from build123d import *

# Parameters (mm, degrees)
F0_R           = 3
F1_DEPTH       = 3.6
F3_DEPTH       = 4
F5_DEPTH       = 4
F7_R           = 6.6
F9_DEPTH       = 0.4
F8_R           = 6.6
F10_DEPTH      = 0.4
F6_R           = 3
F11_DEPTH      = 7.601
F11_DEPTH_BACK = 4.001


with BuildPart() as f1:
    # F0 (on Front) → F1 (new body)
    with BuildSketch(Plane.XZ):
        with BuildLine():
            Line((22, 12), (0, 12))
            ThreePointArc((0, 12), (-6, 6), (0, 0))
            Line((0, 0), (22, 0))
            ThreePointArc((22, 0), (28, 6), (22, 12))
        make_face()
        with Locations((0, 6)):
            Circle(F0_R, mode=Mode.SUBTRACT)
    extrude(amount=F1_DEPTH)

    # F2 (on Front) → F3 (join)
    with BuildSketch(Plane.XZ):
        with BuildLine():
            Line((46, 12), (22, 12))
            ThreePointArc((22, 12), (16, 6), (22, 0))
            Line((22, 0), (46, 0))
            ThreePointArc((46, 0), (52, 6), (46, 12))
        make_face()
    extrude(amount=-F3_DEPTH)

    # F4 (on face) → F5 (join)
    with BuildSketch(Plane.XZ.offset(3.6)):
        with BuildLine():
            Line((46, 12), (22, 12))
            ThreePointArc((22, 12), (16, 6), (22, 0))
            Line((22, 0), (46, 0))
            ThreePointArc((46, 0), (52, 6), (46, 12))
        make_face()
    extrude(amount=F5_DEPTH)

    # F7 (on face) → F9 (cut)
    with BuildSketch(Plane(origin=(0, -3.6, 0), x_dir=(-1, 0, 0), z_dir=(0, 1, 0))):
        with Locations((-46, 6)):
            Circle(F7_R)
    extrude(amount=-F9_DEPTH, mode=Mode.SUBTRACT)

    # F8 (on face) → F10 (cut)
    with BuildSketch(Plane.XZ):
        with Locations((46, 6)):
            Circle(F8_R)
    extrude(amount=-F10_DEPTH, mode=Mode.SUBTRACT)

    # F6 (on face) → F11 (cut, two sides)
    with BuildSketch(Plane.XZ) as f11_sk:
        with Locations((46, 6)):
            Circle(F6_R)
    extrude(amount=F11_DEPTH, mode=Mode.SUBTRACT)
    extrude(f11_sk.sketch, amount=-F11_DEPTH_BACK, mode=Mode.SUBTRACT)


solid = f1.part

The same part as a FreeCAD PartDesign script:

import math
import FreeCAD as App
import Part
import Sketcher

V = App.Vector

doc = App.newDocument("Part")
params = doc.addObject("Spreadsheet::Sheet", "Params")
for row, (alias, value) in enumerate([
    ("sketch1_diameter", "6 mm"),
    ("sketch1_radius", "6 mm"),
    ("sketch1_width", "22 mm"),
    ("pad1_length", "3.6 mm"),
    ("sketch2_radius", "6 mm"),
    ("sketch2_width", "24 mm"),
    ("pad2_length", "4 mm"),
    ("sketch3_radius", "6 mm"),
    ("sketch3_width", "24 mm"),
    ("pad3_length", "4 mm"),
    ("sketch4_diameter", "13.2 mm"),
    ("pocket1_length", "0.4 mm"),
    ("sketch5_diameter", "13.2 mm"),
    ("pocket2_length", "0.4 mm"),
    ("sketch6_diameter", "6 mm"),
], start=1):
    params.set(f"A{row}", alias)
    params.set(f"B{row}", "=" + value)
    params.setAlias(f"B{row}", alias)

body = doc.addObject("PartDesign::Body", "Body")

sketch1 = body.newObject("Sketcher::SketchObject", "Sketch")
sketch1.AttachmentSupport = (doc.getObject("XZ_Plane"), [""])
sketch1.MapMode = "FlatFace"
sketch1.addGeometry(Part.LineSegment(V(22, 12, 0), V(0, 12, 0)), False)
sketch1.addGeometry(Part.ArcOfCircle(Part.Circle(V(0, 6, 0), V(0, 0, 1), 6), math.radians(90), math.radians(270)), False)
sketch1.addGeometry(Part.LineSegment(V(0, 0, 0), V(22, 0, 0)), False)
sketch1.addGeometry(Part.ArcOfCircle(Part.Circle(V(22, 6, 0), V(0, 0, 1), 6), math.radians(-90), math.radians(90)), False)
sketch1.addGeometry(Part.Circle(V(0, 6, 0), V(0, 0, 1), 3), False)
sketch1.addConstraint(Sketcher.Constraint("Tangent", 0, 2, 1, 1))
sketch1.addConstraint(Sketcher.Constraint("Tangent", 1, 2, 2, 1))
sketch1.addConstraint(Sketcher.Constraint("Tangent", 2, 2, 3, 1))
sketch1.addConstraint(Sketcher.Constraint("Tangent", 3, 2, 0, 1))
sketch1.addConstraint(Sketcher.Constraint("Horizontal", 0))
sketch1.addConstraint(Sketcher.Constraint("Horizontal", 2))
sketch1.addConstraint(Sketcher.Constraint("Coincident", 1, 2, -1, 1))
sketch1.addConstraint(Sketcher.Constraint("Coincident", 4, 3, 1, 3))
sketch1.addConstraint(Sketcher.Constraint("Diameter", 4, 6.0))
sketch1.addConstraint(Sketcher.Constraint("Radius", 1, 6.0))
sketch1.addConstraint(Sketcher.Constraint("DistanceX", 0, 2, 0, 1, 22.0))
sketch1.setExpression("Constraints[8]", "Params.sketch1_diameter")
sketch1.setExpression("Constraints[9]", "Params.sketch1_radius")
sketch1.setExpression("Constraints[10]", "Params.sketch1_width")
pad1 = body.newObject("PartDesign::Pad", "Pad")
pad1.Profile = sketch1
pad1.setExpression("Length", "Params.pad1_length")

sketch2 = body.newObject("Sketcher::SketchObject", "Sketch001")
sketch2.AttachmentSupport = (doc.getObject("XZ_Plane"), [""])
sketch2.MapMode = "FlatFace"
sketch2.addGeometry(Part.LineSegment(V(46, 12, 0), V(22, 12, 0)), False)
sketch2.addGeometry(Part.ArcOfCircle(Part.Circle(V(22, 6, 0), V(0, 0, 1), 6), math.radians(90), math.radians(270)), False)
sketch2.addGeometry(Part.LineSegment(V(22, 0, 0), V(46, 0, 0)), False)
sketch2.addGeometry(Part.ArcOfCircle(Part.Circle(V(46, 6, 0), V(0, 0, 1), 6), math.radians(-90), math.radians(90)), False)
sketch2.addConstraint(Sketcher.Constraint("Tangent", 0, 2, 1, 1))
sketch2.addConstraint(Sketcher.Constraint("Tangent", 1, 2, 2, 1))
sketch2.addConstraint(Sketcher.Constraint("Tangent", 2, 2, 3, 1))
sketch2.addConstraint(Sketcher.Constraint("Tangent", 3, 2, 0, 1))
sketch2.addConstraint(Sketcher.Constraint("Horizontal", 0))
sketch2.addConstraint(Sketcher.Constraint("Horizontal", 2))
sketch2.addConstraint(Sketcher.Constraint("PointOnObject", 1, 2, -1))
sketch2.addConstraint(Sketcher.Constraint("Radius", 1, 6.0))
sketch2.addConstraint(Sketcher.Constraint("DistanceX", 0, 2, 0, 1, 24.0))
sketch2.addConstraint(Sketcher.Constraint("DistanceX", -1, 1, 1, 3, 22.0))
sketch2.setExpression("Constraints[7]", "Params.sketch2_radius")
sketch2.setExpression("Constraints[8]", "Params.sketch2_width")
pad2 = body.newObject("PartDesign::Pad", "Pad001")
pad2.Profile = sketch2
pad2.setExpression("Length", "Params.pad2_length")
pad2.Reversed = True

sketch3 = body.newObject("Sketcher::SketchObject", "Sketch002")
sketch3.AttachmentSupport = (doc.getObject("XZ_Plane"), [""])
sketch3.MapMode = "FlatFace"
sketch3.AttachmentOffset = App.Placement(V(0, 0, 3.6), App.Rotation())
sketch3.addGeometry(Part.LineSegment(V(46, 12, 0), V(22, 12, 0)), False)
sketch3.addGeometry(Part.ArcOfCircle(Part.Circle(V(22, 6, 0), V(0, 0, 1), 6), math.radians(90), math.radians(270)), False)
sketch3.addGeometry(Part.LineSegment(V(22, 0, 0), V(46, 0, 0)), False)
sketch3.addGeometry(Part.ArcOfCircle(Part.Circle(V(46, 6, 0), V(0, 0, 1), 6), math.radians(-90), math.radians(90)), False)
sketch3.addConstraint(Sketcher.Constraint("Tangent", 0, 2, 1, 1))
sketch3.addConstraint(Sketcher.Constraint("Tangent", 1, 2, 2, 1))
sketch3.addConstraint(Sketcher.Constraint("Tangent", 2, 2, 3, 1))
sketch3.addConstraint(Sketcher.Constraint("Tangent", 3, 2, 0, 1))
sketch3.addConstraint(Sketcher.Constraint("Horizontal", 0))
sketch3.addConstraint(Sketcher.Constraint("Horizontal", 2))
sketch3.addConstraint(Sketcher.Constraint("PointOnObject", 1, 2, -1))
sketch3.addConstraint(Sketcher.Constraint("Radius", 1, 6.0))
sketch3.addConstraint(Sketcher.Constraint("DistanceX", 0, 2, 0, 1, 24.0))
sketch3.addConstraint(Sketcher.Constraint("DistanceX", -1, 1, 1, 3, 22.0))
sketch3.setExpression("Constraints[7]", "Params.sketch3_radius")
sketch3.setExpression("Constraints[8]", "Params.sketch3_width")
pad3 = body.newObject("PartDesign::Pad", "Pad002")
pad3.Profile = sketch3
pad3.setExpression("Length", "Params.pad3_length")

sketch4 = body.newObject("Sketcher::SketchObject", "Sketch003")
sketch4.AttachmentSupport = (doc.getObject("XZ_Plane"), [""])
sketch4.MapMode = "FlatFace"
sketch4.AttachmentOffset = App.Placement(V(0, 0, 3.6), App.Rotation())
sketch4.addGeometry(Part.Circle(V(46, 6, 0), V(0, 0, 1), 6.6), False)
sketch4.addConstraint(Sketcher.Constraint("Diameter", 0, 13.2))
sketch4.addConstraint(Sketcher.Constraint("DistanceX", -1, 1, 0, 3, 46.0))
sketch4.addConstraint(Sketcher.Constraint("DistanceY", -1, 1, 0, 3, 6.0))
sketch4.setExpression("Constraints[0]", "Params.sketch4_diameter")
pocket1 = body.newObject("PartDesign::Pocket", "Pocket")
pocket1.Profile = sketch4
pocket1.setExpression("Length", "Params.pocket1_length")
pocket1.Reversed = True

sketch5 = body.newObject("Sketcher::SketchObject", "Sketch004")
sketch5.AttachmentSupport = (doc.getObject("XZ_Plane"), [""])
sketch5.MapMode = "FlatFace"
sketch5.addGeometry(Part.Circle(V(46, 6, 0), V(0, 0, 1), 6.6), False)
sketch5.addConstraint(Sketcher.Constraint("Diameter", 0, 13.2))
sketch5.addConstraint(Sketcher.Constraint("DistanceX", -1, 1, 0, 3, 46.0))
sketch5.addConstraint(Sketcher.Constraint("DistanceY", -1, 1, 0, 3, 6.0))
sketch5.setExpression("Constraints[0]", "Params.sketch5_diameter")
pocket2 = body.newObject("PartDesign::Pocket", "Pocket001")
pocket2.Profile = sketch5
pocket2.setExpression("Length", "Params.pocket2_length")

sketch6 = body.newObject("Sketcher::SketchObject", "Sketch005")
sketch6.AttachmentSupport = (doc.getObject("XZ_Plane"), [""])
sketch6.MapMode = "FlatFace"
sketch6.addGeometry(Part.Circle(V(46, 6, 0), V(0, 0, 1), 3), False)
sketch6.addConstraint(Sketcher.Constraint("Diameter", 0, 6.0))
sketch6.addConstraint(Sketcher.Constraint("DistanceX", -1, 1, 0, 3, 46.0))
sketch6.addConstraint(Sketcher.Constraint("DistanceY", -1, 1, 0, 3, 6.0))
sketch6.setExpression("Constraints[0]", "Params.sketch6_diameter")
pocket3 = body.newObject("PartDesign::Pocket", "Pocket002")
pocket3.Profile = sketch6
pocket3.Type = "ThroughAll"
pocket3.Midplane = True

doc.recompute()
